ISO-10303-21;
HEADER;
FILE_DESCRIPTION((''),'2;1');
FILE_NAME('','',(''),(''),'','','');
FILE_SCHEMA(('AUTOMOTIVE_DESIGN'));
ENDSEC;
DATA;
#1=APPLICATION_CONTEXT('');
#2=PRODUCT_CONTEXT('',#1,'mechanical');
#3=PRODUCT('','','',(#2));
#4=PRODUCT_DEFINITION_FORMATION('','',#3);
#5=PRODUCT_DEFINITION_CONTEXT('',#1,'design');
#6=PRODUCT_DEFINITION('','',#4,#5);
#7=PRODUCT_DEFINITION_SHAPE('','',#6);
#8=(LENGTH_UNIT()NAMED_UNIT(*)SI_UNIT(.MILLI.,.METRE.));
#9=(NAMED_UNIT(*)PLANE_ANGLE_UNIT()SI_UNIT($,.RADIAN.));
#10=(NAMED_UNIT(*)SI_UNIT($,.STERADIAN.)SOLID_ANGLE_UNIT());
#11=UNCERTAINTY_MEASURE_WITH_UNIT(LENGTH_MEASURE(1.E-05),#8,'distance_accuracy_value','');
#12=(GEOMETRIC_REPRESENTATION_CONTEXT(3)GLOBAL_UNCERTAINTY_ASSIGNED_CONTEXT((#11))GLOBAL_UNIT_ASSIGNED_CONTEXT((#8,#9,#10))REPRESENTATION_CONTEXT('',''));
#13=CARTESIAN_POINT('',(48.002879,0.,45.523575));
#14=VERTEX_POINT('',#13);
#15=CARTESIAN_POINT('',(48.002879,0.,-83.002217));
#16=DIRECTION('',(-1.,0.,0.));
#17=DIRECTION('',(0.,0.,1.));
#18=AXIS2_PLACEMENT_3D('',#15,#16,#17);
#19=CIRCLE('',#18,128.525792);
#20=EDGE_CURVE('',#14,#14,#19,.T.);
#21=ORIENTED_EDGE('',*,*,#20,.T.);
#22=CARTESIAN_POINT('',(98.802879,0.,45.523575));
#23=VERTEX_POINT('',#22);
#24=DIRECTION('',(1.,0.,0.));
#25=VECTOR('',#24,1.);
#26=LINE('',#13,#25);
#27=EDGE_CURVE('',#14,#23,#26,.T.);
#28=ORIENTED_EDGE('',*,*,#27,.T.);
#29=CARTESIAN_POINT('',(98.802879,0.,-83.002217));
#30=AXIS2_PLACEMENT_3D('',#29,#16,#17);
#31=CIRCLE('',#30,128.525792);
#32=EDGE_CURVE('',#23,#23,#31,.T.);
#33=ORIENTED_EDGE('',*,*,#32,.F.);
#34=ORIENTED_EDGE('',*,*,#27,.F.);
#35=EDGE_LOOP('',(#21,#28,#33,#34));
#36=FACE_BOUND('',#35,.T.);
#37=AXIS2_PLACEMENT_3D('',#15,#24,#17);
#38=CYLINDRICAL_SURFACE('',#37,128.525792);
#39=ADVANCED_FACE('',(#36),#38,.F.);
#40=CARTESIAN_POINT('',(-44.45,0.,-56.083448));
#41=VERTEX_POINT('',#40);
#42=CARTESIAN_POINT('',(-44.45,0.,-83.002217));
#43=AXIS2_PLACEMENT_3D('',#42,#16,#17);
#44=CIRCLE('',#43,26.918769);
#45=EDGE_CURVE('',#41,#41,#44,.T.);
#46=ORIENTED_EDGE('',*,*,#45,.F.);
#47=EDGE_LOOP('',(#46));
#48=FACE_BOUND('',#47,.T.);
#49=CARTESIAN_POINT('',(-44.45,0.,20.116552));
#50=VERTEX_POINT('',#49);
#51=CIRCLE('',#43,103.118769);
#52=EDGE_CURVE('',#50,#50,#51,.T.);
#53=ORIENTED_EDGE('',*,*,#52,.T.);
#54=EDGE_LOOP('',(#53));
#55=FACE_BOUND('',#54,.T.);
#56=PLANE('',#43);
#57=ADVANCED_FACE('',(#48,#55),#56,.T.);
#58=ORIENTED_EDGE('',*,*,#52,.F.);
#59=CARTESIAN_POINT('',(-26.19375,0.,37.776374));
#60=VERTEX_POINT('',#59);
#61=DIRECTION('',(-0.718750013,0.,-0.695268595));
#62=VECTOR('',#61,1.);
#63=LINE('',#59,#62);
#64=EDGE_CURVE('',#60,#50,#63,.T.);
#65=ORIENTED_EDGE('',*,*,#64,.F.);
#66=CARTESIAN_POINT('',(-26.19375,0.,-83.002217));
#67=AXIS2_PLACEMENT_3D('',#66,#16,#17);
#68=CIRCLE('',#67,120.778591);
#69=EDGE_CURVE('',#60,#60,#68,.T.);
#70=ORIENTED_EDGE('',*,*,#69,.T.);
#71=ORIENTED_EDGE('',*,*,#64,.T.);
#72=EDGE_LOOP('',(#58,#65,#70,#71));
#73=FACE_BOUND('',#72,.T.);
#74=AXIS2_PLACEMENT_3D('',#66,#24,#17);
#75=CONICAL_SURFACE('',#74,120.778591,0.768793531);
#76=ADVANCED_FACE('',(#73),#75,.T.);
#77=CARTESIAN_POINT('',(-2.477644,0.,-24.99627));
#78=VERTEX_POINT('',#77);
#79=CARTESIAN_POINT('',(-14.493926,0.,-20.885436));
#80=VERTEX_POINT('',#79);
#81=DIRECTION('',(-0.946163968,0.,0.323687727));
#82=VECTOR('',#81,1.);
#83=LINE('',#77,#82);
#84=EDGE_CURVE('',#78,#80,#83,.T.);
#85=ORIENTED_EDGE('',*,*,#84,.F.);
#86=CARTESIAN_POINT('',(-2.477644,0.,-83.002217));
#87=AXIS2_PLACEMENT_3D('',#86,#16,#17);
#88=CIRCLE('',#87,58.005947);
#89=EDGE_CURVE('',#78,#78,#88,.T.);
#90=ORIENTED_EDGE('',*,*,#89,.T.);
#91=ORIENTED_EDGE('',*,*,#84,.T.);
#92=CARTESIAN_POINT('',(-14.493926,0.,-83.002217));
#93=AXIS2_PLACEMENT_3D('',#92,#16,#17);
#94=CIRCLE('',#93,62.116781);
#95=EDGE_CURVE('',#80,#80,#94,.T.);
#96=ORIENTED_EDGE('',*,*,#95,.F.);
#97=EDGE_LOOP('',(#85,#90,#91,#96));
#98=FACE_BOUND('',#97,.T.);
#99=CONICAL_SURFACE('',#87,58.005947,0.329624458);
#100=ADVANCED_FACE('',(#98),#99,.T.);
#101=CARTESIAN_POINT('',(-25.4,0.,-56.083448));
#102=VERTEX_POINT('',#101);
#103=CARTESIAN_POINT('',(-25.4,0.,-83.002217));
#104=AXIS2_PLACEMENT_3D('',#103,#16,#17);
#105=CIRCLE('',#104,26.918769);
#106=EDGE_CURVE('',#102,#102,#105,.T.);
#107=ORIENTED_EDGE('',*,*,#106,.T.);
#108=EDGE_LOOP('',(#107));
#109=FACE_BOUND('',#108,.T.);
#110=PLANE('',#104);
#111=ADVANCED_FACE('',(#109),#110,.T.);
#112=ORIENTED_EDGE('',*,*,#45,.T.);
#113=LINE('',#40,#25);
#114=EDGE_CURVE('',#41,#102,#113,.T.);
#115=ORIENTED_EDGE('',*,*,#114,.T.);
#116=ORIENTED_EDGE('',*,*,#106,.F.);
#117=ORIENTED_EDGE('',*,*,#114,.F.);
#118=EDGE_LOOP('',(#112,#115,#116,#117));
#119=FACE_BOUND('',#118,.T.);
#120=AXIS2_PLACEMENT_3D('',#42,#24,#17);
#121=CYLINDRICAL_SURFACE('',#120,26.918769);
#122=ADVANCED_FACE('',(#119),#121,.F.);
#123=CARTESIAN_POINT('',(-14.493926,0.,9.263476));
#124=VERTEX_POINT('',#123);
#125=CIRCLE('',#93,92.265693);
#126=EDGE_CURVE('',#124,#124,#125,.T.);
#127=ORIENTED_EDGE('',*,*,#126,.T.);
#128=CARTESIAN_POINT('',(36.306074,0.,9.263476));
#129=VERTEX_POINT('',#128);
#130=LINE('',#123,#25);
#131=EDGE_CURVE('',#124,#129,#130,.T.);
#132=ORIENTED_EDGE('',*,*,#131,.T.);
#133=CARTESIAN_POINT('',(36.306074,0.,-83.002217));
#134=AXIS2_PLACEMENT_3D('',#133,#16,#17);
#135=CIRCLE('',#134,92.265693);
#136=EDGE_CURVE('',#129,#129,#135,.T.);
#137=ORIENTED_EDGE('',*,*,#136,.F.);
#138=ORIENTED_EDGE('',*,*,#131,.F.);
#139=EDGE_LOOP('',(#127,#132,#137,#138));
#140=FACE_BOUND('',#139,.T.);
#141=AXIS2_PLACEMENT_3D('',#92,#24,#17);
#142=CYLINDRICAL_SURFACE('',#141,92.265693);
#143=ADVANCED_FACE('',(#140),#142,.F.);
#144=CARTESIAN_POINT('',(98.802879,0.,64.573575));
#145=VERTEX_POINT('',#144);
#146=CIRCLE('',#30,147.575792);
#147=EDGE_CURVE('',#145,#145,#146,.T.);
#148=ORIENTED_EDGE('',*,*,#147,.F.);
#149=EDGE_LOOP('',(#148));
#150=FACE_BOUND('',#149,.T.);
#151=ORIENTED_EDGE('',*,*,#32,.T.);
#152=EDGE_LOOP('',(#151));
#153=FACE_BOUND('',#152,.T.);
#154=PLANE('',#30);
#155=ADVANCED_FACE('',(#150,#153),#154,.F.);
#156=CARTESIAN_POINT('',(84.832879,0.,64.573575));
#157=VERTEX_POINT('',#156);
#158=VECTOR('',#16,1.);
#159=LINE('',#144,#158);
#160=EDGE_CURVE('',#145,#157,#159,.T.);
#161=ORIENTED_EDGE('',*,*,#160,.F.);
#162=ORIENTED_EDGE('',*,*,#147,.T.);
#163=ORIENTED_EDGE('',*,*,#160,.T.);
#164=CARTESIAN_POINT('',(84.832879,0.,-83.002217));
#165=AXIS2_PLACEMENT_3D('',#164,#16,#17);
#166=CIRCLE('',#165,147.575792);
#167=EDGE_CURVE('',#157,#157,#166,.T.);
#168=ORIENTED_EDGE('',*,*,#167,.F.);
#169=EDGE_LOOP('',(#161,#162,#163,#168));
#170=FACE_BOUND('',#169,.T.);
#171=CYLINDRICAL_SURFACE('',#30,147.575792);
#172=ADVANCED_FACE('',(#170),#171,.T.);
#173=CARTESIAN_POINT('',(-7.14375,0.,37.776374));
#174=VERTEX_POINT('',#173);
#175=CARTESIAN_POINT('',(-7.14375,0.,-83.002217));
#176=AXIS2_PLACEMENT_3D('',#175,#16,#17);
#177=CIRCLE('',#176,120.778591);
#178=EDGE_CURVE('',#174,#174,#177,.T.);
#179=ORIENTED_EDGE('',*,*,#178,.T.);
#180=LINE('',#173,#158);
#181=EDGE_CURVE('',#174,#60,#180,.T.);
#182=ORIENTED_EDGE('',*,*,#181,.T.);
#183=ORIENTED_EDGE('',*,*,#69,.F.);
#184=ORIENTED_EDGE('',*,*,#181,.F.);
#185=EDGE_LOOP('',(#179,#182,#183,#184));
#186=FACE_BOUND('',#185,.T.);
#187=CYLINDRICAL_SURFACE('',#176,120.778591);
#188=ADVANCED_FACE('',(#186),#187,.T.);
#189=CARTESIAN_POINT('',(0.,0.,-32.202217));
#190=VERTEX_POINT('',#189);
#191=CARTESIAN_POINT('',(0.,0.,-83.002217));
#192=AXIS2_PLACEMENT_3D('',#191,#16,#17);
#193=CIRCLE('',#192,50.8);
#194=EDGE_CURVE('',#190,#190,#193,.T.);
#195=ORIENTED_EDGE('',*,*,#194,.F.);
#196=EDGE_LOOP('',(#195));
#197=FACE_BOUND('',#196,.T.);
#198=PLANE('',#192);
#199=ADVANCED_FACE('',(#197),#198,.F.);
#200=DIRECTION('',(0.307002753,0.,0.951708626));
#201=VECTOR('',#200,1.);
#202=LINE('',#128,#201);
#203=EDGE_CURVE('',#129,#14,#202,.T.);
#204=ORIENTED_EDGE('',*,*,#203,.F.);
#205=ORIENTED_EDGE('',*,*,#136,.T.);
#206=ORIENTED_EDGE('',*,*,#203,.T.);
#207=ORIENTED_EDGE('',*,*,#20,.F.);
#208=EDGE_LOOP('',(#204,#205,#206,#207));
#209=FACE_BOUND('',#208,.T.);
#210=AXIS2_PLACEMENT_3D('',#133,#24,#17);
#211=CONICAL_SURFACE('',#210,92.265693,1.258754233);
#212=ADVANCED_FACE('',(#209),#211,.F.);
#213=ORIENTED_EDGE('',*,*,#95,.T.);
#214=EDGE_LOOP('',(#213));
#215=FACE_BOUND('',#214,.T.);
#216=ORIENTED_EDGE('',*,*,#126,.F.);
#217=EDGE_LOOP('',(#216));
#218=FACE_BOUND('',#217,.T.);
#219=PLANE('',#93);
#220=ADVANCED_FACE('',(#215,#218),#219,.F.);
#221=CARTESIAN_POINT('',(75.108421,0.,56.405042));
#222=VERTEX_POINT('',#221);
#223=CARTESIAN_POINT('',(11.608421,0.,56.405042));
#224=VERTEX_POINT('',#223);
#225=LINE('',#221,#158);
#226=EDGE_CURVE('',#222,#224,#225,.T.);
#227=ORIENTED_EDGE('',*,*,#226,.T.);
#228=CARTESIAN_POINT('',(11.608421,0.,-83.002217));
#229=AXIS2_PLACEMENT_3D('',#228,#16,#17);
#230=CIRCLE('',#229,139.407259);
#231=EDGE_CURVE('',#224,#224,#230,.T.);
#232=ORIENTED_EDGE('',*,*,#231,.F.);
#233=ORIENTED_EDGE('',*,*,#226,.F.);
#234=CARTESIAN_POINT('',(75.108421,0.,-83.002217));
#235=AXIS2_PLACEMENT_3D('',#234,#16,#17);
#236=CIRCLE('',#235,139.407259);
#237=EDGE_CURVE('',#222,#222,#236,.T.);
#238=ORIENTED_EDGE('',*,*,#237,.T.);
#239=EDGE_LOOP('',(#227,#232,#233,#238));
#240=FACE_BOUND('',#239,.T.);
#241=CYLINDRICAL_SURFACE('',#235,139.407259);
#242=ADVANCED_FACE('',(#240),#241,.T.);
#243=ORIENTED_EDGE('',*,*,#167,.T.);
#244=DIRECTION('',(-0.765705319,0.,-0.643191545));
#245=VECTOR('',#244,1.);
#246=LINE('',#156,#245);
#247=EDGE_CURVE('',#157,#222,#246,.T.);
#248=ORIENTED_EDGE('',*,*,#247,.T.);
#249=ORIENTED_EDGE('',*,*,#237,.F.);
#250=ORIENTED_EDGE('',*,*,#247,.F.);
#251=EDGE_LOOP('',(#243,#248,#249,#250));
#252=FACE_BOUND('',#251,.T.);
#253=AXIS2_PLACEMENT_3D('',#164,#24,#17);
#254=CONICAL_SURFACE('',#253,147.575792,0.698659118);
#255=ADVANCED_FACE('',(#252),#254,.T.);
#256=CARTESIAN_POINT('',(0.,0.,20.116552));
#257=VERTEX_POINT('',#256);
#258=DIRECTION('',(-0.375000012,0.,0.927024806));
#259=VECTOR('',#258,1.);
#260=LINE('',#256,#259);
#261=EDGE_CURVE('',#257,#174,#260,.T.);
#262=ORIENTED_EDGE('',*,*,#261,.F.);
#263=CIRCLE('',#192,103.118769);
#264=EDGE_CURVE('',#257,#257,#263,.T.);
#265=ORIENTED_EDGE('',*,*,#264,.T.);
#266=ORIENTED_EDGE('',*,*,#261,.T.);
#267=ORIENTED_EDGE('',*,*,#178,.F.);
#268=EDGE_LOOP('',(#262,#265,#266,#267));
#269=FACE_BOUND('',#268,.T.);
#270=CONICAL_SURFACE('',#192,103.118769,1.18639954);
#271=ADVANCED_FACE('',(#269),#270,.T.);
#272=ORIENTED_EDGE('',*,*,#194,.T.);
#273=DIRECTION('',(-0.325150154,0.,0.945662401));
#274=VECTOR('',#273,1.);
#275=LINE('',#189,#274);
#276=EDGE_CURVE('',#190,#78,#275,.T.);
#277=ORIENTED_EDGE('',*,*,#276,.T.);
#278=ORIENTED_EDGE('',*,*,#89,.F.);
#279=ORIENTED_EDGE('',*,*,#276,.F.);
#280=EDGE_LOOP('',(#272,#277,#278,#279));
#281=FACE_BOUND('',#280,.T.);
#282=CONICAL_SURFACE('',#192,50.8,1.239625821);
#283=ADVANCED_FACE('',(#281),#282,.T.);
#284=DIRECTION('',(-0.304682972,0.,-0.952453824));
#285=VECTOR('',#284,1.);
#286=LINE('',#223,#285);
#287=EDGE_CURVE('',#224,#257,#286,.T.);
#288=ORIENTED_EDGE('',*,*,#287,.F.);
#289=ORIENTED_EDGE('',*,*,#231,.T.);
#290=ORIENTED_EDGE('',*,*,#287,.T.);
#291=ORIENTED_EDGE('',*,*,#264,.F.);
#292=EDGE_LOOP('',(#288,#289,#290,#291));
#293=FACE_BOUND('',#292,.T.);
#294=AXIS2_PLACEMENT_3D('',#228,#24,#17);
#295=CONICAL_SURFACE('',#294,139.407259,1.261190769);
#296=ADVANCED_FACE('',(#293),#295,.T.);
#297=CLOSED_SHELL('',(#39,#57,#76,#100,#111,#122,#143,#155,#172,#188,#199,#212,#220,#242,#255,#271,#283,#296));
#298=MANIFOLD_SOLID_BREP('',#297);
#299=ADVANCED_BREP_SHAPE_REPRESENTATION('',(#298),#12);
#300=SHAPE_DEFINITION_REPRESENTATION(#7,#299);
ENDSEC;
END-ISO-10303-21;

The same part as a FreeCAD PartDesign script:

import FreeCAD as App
import Part
import Sketcher
from FreeCAD import Vector
Q = App.Units.Quantity


def add_polygon(sketch, points):
    """Adds a closed chain of lines whose ends are joined by coincident constraints."""
    first, n = sketch.GeometryCount, len(points)
    for a, b in zip(points, points[1:] + points[:1]):
        sketch.addGeometry(Part.LineSegment(App.Vector(*a, 0), App.Vector(*b, 0)), False)
    for i in range(n):
        sketch.addConstraint(Sketcher.Constraint("Coincident", first + i, 2, first + (i + 1) % n, 1))

doc = App.newDocument("Part")
body = doc.addObject("PartDesign::Body", "Body")

sketch1 = body.newObject("Sketcher::SketchObject", "Sketch")
sketch1.AttachmentSupport = (doc.getObject("XZ_Plane"), [""])
sketch1.MapMode = "FlatFace"
add_polygon(sketch1, [(-26, 38), (-44, 20), (-44, -56), (-25, -56), (-25, -83), (0, -83), (0, -32), (-2, -25), (-14, -21), (-14, 9), (36, 9), (48, 46), (99, 46), (99, 65), (85, 65), (75, 56), (12, 56), (0, 20), (-7, 38)])
sketch1.addGeometry(Part.LineSegment(Vector(99, -83, 0), Vector(-44, -83, 0)), True)
sketch1.addConstraint(Sketcher.Constraint("Vertical", 1))
sketch1.addConstraint(Sketcher.Constraint("Horizontal", 2))
sketch1.addConstraint(Sketcher.Constraint("Vertical", 3))
sketch1.addConstraint(Sketcher.Constraint("Horizontal", 4))
sketch1.addConstraint(Sketcher.Constraint("Vertical", 5))
sketch1.addConstraint(Sketcher.Constraint("Vertical", 8))
sketch1.addConstraint(Sketcher.Constraint("Horizontal", 9))
sketch1.addConstraint(Sketcher.Constraint("Horizontal", 11))
sketch1.addConstraint(Sketcher.Constraint("Vertical", 12))
sketch1.addConstraint(Sketcher.Constraint("Horizontal", 13))
sketch1.addConstraint(Sketcher.Constraint("Horizontal", 15))
sketch1.addConstraint(Sketcher.Constraint("Horizontal", 18))
sketch1.addConstraint(Sketcher.Constraint("Horizontal", 19))
sketch1.addConstraint(Sketcher.Constraint("PointOnObject", 4, 2, -2))
sketch1.addConstraint(Sketcher.Constraint("PointOnObject", 16, 2, -2))
sketch1.addConstraint(Sketcher.Constraint("Horizontal", 0, 2, 16, 2))
sketch1.addConstraint(Sketcher.Constraint("Horizontal", 4, 2, 19, 1))
sketch1.addConstraint(Sketcher.Constraint("Vertical", 12, 2, 19, 1))
sketch1.addConstraint(Sketcher.Constraint("Vertical", 1, 2, 19, 2))
sketch1.addConstraint(Sketcher.Constraint("Equal", 9, 11))
sketch1.addConstraint(Sketcher.Constraint("Equal", 2, 18))
sketch1.addConstraint(Sketcher.Constraint("Equal", 11, 5))
sketch1.addConstraint(Sketcher.Constraint("Equal", 18, 12))
sketch1.addConstraint(Sketcher.Constraint("Equal", 7, 14))
sketch1.addConstraint(Sketcher.Constraint("Equal", 10, 16))
sketch1.addConstraint(Sketcher.Constraint("DistanceX", 4, 1, 4, 2, Q("1 in")))
sketch1.addConstraint(Sketcher.Constraint("DistanceX", 9, 1, 9, 2, Q("2 in")))
sketch1.addConstraint(Sketcher.Constraint("DistanceY", 1, 2, 1, 1, Q("3 in")))
sketch1.addConstraint(Sketcher.Constraint("Distance", 0, Q("1 in")))
sketch1.addConstraint(Sketcher.Constraint("DistanceX", 15, 2, 15, 1, Q("2.5 in")))
sketch1.addConstraint(Sketcher.Constraint("Distance", 6, Q("0.3 in")))
sketch1.addConstraint(Sketcher.Constraint("Distance", 7, Q("0.5 in")))
sketch1.addConstraint(Sketcher.Constraint("Distance", 10, Q("1.5 in")))
sketch1.addConstraint(Sketcher.Constraint("DistanceX", 2, 1, 2, 2, Q("0.75 in")))
sketch1.addConstraint(Sketcher.Constraint("DistanceX", 13, 2, 13, 1, Q("0.55 in")))
sketch1.addConstraint(Sketcher.Constraint("Distance", 17, Q("0.75 in")))
sketch1.addConstraint(Sketcher.Constraint("DistanceX", 19, 2, 19, 1, Q("143.252879 mm")))
sketch1.addConstraint(Sketcher.Constraint("DistanceY", 3, 2, 3, 1, Q("26.918769 mm")))
sketch1.addConstraint(Sketcher.Constraint("DistanceY", 8, 1, 8, 2, Q("30.148912 mm")))
sketch1.addConstraint(Sketcher.Constraint("DistanceY", 9, 2, 10, 2, Q("36.260099 mm")))
sketch1.addConstraint(Sketcher.Constraint("DistanceY", -1, 1, 0, 2, Q("20.116552 mm")))
sketch1.addConstraint(Sketcher.Constraint("DistanceY", 6, 2, -1, 1, Q("24.99627 mm")))
revolution = body.newObject("PartDesign::Revolution", "Revolution")
revolution.Profile = sketch1
revolution.ReferenceAxis = (sketch1, ["Axis0"])
revolution.Angle = 360

doc.recompute()
